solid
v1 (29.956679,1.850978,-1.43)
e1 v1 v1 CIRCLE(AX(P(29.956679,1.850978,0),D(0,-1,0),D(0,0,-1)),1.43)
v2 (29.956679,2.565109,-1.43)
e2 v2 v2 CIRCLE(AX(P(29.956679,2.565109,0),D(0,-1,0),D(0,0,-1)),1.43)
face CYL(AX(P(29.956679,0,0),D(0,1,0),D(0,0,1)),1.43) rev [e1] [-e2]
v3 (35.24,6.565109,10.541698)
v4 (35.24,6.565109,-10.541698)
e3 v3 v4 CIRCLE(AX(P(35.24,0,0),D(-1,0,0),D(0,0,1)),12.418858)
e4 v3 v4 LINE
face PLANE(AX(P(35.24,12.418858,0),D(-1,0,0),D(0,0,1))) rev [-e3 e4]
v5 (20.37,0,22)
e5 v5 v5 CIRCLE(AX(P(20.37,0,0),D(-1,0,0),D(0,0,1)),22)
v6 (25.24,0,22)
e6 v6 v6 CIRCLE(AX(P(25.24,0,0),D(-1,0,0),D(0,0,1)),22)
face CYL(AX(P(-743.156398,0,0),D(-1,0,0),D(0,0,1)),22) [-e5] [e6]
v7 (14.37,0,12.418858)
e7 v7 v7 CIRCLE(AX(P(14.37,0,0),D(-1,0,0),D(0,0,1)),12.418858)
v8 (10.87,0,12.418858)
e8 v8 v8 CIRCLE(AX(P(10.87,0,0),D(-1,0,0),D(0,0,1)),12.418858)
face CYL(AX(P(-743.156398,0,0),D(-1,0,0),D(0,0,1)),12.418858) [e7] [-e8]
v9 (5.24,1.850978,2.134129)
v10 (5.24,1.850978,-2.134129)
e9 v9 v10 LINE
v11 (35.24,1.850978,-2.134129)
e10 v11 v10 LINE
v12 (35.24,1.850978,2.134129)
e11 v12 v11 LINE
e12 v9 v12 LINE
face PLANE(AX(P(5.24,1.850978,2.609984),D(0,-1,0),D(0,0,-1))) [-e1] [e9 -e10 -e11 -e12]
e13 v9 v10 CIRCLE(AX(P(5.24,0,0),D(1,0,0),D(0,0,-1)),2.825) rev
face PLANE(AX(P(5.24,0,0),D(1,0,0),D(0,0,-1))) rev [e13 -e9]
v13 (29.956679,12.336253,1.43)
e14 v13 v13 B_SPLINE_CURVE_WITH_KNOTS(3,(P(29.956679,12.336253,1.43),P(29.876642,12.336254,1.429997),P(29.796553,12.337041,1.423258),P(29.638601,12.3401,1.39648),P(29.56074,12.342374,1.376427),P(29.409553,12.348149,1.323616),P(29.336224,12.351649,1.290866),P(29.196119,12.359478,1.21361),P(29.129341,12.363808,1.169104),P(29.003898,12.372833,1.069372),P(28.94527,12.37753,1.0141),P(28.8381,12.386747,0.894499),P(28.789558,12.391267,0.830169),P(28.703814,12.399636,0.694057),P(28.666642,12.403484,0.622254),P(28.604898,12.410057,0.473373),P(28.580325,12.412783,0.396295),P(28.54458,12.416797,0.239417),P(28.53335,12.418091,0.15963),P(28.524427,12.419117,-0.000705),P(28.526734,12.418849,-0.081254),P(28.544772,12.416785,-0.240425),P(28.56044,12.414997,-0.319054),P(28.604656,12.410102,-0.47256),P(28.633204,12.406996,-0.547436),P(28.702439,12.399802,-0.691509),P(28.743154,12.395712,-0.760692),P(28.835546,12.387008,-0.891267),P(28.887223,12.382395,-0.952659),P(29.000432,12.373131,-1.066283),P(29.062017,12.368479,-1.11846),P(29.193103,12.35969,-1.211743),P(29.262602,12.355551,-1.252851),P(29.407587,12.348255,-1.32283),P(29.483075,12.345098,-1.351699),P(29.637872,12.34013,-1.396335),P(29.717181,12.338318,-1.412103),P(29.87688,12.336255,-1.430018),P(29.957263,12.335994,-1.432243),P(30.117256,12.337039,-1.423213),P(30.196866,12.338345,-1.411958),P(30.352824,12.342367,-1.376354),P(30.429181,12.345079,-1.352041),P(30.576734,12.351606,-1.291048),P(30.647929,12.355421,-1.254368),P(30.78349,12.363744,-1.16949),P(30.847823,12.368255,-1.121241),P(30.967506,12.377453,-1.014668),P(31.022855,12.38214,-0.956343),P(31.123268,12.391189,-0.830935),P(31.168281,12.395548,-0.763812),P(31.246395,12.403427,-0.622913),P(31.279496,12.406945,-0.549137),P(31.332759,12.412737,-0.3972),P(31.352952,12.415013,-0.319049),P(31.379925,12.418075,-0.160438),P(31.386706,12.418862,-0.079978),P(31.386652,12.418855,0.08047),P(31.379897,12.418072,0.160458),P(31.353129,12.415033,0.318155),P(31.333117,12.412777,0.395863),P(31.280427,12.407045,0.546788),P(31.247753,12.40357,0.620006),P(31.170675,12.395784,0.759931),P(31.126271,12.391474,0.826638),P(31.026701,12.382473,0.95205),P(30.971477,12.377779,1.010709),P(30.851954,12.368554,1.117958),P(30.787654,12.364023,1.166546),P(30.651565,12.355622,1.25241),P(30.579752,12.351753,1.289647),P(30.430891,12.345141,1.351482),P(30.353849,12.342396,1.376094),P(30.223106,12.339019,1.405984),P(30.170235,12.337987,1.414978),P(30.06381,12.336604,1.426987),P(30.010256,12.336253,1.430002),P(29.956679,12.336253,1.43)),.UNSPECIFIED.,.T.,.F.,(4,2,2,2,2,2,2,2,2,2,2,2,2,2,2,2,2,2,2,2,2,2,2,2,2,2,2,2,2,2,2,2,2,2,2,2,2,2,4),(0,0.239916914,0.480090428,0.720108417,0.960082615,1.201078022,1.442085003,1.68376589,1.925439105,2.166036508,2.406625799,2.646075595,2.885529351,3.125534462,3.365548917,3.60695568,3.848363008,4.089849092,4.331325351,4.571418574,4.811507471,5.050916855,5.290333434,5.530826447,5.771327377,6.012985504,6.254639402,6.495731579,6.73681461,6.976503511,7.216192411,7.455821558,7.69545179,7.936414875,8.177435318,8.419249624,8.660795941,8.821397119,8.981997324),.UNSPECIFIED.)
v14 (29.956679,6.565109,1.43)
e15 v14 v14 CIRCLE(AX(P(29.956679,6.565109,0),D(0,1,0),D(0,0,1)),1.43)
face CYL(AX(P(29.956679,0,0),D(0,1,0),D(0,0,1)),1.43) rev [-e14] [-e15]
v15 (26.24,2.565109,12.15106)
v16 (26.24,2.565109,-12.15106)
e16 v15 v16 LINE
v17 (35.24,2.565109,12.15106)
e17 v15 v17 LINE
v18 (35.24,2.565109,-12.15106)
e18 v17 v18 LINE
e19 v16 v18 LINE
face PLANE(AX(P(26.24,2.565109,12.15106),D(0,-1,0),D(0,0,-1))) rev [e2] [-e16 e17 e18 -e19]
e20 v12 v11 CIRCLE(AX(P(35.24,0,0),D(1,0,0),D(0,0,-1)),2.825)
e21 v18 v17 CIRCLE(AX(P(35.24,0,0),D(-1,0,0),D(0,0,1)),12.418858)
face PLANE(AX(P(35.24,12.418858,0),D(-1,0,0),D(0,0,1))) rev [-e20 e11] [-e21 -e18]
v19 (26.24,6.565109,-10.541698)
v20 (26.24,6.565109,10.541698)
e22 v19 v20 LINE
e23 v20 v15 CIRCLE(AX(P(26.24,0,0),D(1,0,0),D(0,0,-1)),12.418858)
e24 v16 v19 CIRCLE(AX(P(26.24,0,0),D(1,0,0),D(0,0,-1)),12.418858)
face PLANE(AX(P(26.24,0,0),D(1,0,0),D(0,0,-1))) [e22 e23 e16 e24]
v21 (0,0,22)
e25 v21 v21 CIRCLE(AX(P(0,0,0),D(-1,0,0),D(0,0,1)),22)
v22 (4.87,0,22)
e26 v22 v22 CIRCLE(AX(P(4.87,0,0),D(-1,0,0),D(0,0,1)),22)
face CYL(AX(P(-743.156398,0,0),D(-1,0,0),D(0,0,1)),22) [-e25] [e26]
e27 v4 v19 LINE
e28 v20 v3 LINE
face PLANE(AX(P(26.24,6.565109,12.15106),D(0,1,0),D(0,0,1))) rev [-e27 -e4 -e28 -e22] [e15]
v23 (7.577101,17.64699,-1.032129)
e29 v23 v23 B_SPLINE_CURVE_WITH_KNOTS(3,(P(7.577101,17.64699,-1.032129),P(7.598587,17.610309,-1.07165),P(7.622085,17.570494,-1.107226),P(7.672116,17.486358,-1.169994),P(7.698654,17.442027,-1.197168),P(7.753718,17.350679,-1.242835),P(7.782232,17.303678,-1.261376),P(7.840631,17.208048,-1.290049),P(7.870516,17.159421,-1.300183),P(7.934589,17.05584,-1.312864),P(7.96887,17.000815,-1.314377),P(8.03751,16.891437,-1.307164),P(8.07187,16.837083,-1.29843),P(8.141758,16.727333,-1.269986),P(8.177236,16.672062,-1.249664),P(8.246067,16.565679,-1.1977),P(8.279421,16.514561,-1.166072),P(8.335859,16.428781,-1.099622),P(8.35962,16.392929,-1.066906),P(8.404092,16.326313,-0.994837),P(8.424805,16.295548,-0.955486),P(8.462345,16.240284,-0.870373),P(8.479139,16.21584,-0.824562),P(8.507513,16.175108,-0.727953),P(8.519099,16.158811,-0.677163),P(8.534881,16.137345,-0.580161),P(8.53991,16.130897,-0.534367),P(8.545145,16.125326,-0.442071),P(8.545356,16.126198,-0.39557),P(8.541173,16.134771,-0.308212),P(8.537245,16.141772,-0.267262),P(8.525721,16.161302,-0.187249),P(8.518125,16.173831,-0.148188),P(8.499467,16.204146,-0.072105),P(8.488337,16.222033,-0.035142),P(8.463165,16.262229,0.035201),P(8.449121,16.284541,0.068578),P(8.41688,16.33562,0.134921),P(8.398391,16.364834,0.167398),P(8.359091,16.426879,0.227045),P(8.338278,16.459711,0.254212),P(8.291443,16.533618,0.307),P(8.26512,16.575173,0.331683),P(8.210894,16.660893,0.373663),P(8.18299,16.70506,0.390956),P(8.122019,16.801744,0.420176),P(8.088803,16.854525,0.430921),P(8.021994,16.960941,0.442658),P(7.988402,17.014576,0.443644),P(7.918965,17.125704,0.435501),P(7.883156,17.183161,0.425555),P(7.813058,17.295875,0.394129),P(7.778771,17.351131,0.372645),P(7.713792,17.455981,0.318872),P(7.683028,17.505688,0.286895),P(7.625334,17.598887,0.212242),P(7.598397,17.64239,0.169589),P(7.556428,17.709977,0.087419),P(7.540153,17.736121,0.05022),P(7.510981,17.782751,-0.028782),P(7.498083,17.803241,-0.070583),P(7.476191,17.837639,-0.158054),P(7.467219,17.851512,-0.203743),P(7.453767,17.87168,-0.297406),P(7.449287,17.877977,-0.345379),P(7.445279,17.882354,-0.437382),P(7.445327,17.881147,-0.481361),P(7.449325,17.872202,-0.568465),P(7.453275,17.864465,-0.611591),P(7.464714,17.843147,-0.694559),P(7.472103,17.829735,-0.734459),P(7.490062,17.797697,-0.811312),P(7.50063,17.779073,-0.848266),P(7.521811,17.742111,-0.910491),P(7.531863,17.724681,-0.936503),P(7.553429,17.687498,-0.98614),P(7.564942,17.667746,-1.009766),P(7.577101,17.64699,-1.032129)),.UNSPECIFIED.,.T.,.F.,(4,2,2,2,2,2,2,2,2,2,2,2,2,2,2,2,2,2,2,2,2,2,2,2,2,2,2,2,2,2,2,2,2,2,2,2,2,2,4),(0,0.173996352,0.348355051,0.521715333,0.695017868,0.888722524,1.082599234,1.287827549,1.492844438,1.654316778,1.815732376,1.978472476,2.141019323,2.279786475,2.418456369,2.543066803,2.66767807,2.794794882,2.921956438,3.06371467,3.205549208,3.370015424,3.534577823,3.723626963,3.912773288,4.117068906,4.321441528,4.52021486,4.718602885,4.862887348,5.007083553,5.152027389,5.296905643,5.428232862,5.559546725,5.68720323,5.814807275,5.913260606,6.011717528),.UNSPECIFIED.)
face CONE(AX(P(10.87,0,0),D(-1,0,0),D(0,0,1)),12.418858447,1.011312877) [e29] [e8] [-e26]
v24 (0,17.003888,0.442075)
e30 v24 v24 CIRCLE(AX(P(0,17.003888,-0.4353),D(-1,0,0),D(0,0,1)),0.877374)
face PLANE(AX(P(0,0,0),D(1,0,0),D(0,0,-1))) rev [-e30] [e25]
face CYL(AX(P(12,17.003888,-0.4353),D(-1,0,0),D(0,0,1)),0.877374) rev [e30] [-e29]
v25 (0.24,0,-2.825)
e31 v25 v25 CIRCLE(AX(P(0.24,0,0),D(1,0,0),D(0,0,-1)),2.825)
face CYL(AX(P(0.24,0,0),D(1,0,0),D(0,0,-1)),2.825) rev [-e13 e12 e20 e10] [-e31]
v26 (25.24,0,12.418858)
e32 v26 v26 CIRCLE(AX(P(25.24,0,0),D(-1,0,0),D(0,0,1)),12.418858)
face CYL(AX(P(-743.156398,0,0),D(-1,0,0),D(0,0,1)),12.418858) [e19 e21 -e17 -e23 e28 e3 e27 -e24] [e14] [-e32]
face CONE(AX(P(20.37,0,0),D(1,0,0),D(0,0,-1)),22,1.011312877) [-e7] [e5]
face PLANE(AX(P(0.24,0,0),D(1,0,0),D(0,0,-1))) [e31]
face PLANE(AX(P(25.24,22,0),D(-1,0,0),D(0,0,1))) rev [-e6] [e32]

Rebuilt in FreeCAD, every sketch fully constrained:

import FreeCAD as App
import Part
import Sketcher

V = App.Vector
Q = App.Units.Quantity

doc = App.newDocument("Part")
body = doc.addObject("PartDesign::Body", "Body")

sketch1 = body.newObject("Sketcher::SketchObject", "Sketch")
sketch1.AttachmentSupport = (doc.getObject("XY_Plane"), [""])
sketch1.MapMode = "FlatFace"
sketch1.addGeometry([
    Part.LineSegment(V(0, 22, 0), V(0, 0, 0)),
    Part.LineSegment(V(0, 0, 0), V(35.2, 0, 0)),
    Part.LineSegment(V(35.2, 0, 0), V(35.2, 12.4, 0)),
    Part.LineSegment(V(35.2, 12.4, 0), V(25.2, 12.4, 0)),
    Part.LineSegment(V(25.2, 12.4, 0), V(25.2, 22, 0)),
    Part.LineSegment(V(25.2, 22, 0), V(20.4, 22, 0)),
    Part.LineSegment(V(20.4, 22, 0), V(14.4, 12.4, 0)),
    Part.LineSegment(V(14.4, 12.4, 0), V(10.9, 12.4, 0)),
    Part.LineSegment(V(10.9, 12.4, 0), V(4.9, 22, 0)),
    Part.LineSegment(V(4.9, 22, 0), V(0, 22, 0)),
], False)
sketch1.addConstraint([
    Sketcher.Constraint("Coincident", 0, 2, 1, 1),
    Sketcher.Constraint("Coincident", 1, 2, 2, 1),
    Sketcher.Constraint("Coincident", 2, 2, 3, 1),
    Sketcher.Constraint("Coincident", 3, 2, 4, 1),
    Sketcher.Constraint("Coincident", 4, 2, 5, 1),
    Sketcher.Constraint("Coincident", 5, 2, 6, 1),
    Sketcher.Constraint("Coincident", 6, 2, 7, 1),
    Sketcher.Constraint("Coincident", 7, 2, 8, 1),
    Sketcher.Constraint("Coincident", 8, 2, 9, 1),
    Sketcher.Constraint("Coincident", 9, 2, 0, 1),
    Sketcher.Constraint("Vertical", 0),
    Sketcher.Constraint("Horizontal", 1),
    Sketcher.Constraint("Vertical", 2),
    Sketcher.Constraint("Horizontal", 3),
    Sketcher.Constraint("Vertical", 4),
    Sketcher.Constraint("Horizontal", 5),
    Sketcher.Constraint("Horizontal", 7),
    Sketcher.Constraint("Horizontal", 9),
    Sketcher.Constraint("Coincident", 0, 2, -1, 1),
    Sketcher.Constraint("Horizontal", 3, 2, 6, 2),
    Sketcher.Constraint("Horizontal", 5, 2, 8, 2),
    Sketcher.Constraint("Equal", 5, 9),
    Sketcher.Constraint("Equal", 6, 8),
    Sketcher.Constraint("DistanceX", 3, 2, 3, 1, Q("10 mm")),
    Sketcher.Constraint("DistanceY", 0, 2, 0, 1, Q("22 mm")),
    Sketcher.Constraint("DistanceX", 7, 2, 7, 1, Q("3.5 mm")),
    Sketcher.Constraint("DistanceX", 6, 2, 5, 2, Q("6 mm")),
    Sketcher.Constraint("DistanceX", 1, 1, 1, 2, Q("35.24 mm")),
    Sketcher.Constraint("DistanceY", 2, 1, 2, 2, Q("12.418858 mm")),
])
revolution = body.newObject("PartDesign::Revolution", "Revolution")
revolution.Profile = sketch1
revolution.ReferenceAxis = (sketch1, ["H_Axis"])
revolution.Angle = 360

sketch2 = body.newObject("Sketcher::SketchObject", "Sketch001")
sketch2.AttachmentSupport = (doc.getObject("YZ_Plane"), [""])
sketch2.MapMode = "FlatFace"
sketch2.AttachmentOffset = App.Placement(V(0, 0, 35.24), App.Rotation())
sketch2.addGeometry(Part.Circle(V(0, 0, 0), V(0, 0, 1), 2.8), False)
sketch2.addConstraint([
    Sketcher.Constraint("Coincident", 0, 3, -1, 1),
    Sketcher.Constraint("Diameter", 0, Q("5.65 mm")),
])
pocket1 = body.newObject("PartDesign::Pocket", "Pocket")
pocket1.Profile = sketch2
pocket1.Length = 35

sketch3 = body.newObject("Sketcher::SketchObject", "Sketch002")
sketch3.AttachmentSupport = (doc.getObject("YZ_Plane"), [""])
sketch3.MapMode = "FlatFace"
sketch3.addGeometry(Part.Circle(V(17, -0.4, 0), V(0, 0, 1), 0.9), False)
sketch3.addConstraint([
    Sketcher.Constraint("Diameter", 0, Q("1.754749 mm")),
    Sketcher.Constraint("DistanceY", 0, 3, -1, 1, Q("0.4353 mm")),
    Sketcher.Constraint("DistanceX", -1, 1, 0, 3, Q("17.003888 mm")),
])
pocket2 = body.newObject("PartDesign::Pocket", "Pocket001")
pocket2.Profile = sketch3
pocket2.Length = 12
pocket2.Reversed = True

sketch4 = body.newObject("Sketcher::SketchObject", "Sketch003")
sketch4.AttachmentSupport = (doc.getObject("YZ_Plane"), [""])
sketch4.MapMode = "FlatFace"
sketch4.AttachmentOffset = App.Placement(V(0, 0, 35.24), App.Rotation())
sketch4.addGeometry([
    Part.LineSegment(V(2.9, 2.6, 0), V(1.9, 2.6, 0)),
    Part.LineSegment(V(1.9, 2.6, 0), V(1.9, -2.4, 0)),
    Part.LineSegment(V(1.9, -2.4, 0), V(2.9, -2.4, 0)),
    Part.LineSegment(V(2.9, -2.4, 0), V(2.9, 2.6, 0)),
], False)
sketch4.addConstraint([
    Sketcher.Constraint("Coincident", 0, 2, 1, 1),
    Sketcher.Constraint("Coincident", 1, 2, 2, 1),
    Sketcher.Constraint("Coincident", 2, 2, 3, 1),
    Sketcher.Constraint("Coincident", 3, 2, 0, 1),
    Sketcher.Constraint("Horizontal", 0),
    Sketcher.Constraint("Vertical", 1),
    Sketcher.Constraint("Horizontal", 2),
    Sketcher.Constraint("Vertical", 3),
    Sketcher.Constraint("DistanceX", 0, 2, 0, 1, Q("1 mm")),
    Sketcher.Constraint("DistanceY", 1, 2, 1, 1, Q("5.008881 mm")),
    Sketcher.Constraint("DistanceX", -1, 1, 0, 2, Q("1.850978 mm")),
    Sketcher.Constraint("DistanceY", -1, 1, 0, 2, Q("2.609984 mm")),
])
pad1 = body.newObject("PartDesign::Pad", "Pad")
pad1.Profile = sketch4
pad1.Length = 30
pad1.Reversed = True

sketch5 = body.newObject("Sketcher::SketchObject", "Sketch004")
sketch5.AttachmentSupport = (doc.getObject("YZ_Plane"), [""])
sketch5.MapMode = "FlatFace"
sketch5.AttachmentOffset = App.Placement(V(0, 0, 35.24), App.Rotation())
sketch5.addGeometry([
    Part.LineSegment(V(2.9, 0.6, 0), V(2.4, 0.6, 0)),
    Part.LineSegment(V(2.4, 0.6, 0), V(2.4, -0.4, 0)),
    Part.LineSegment(V(2.4, -0.4, 0), V(2.9, -0.4, 0)),
    Part.LineSegment(V(2.9, -0.4, 0), V(2.9, 0.6, 0)),
], False)
sketch5.addConstraint([
    Sketcher.Constraint("Coincident", 0, 2, 1, 1),
    Sketcher.Constraint("Coincident", 1, 2, 2, 1),
    Sketcher.Constraint("Coincident", 2, 2, 3, 1),
    Sketcher.Constraint("Coincident", 3, 2, 0, 1),
    Sketcher.Constraint("Horizontal", 0),
    Sketcher.Constraint("Vertical", 1),
    Sketcher.Constraint("Horizontal", 2),
    Sketcher.Constraint("Vertical", 3),
    Sketcher.Constraint("DistanceX", 0, 2, 0, 1, Q("0.511502 mm")),
    Sketcher.Constraint("DistanceY", 1, 2, 1, 1, Q("0.959067 mm")),
    Sketcher.Constraint("DistanceX", -1, 1, 0, 2, Q("2.418192 mm")),
    Sketcher.Constraint("DistanceY", -1, 1, 0, 2, Q("0.56365 mm")),
])
pad2 = body.newObject("PartDesign::Pad", "Pad001")
pad2.Profile = sketch5
pad2.Length = 30
pad2.Reversed = True

sketch6 = body.newObject("Sketcher::SketchObject", "Sketch005")
sketch6.AttachmentSupport = (doc.getObject("YZ_Plane"), [""])
sketch6.MapMode = "FlatFace"
sketch6.AttachmentOffset = App.Placement(V(0, 0, 35.24), App.Rotation())
sketch6.addGeometry([
    Part.LineSegment(V(6.6, 12.2, 0), V(2.6, 12.2, 0)),
    Part.LineSegment(V(2.6, 12.2, 0), V(2.6, -12.2, 0)),
    Part.LineSegment(V(2.6, -12.2, 0), V(6.6, -12.2, 0)),
    Part.LineSegment(V(6.6, -12.2, 0), V(6.6, 12.2, 0)),
], False)
sketch6.addConstraint([
    Sketcher.Constraint("Coincident", 0, 2, 1, 1),
    Sketcher.Constraint("Coincident", 1, 2, 2, 1),
    Sketcher.Constraint("Coincident", 2, 2, 3, 1),
    Sketcher.Constraint("Coincident", 3, 2, 0, 1),
    Sketcher.Constraint("Horizontal", 0),
    Sketcher.Constraint("Vertical", 1),
    Sketcher.Constraint("Horizontal", 2),
    Sketcher.Constraint("Vertical", 3),
    Sketcher.Constraint("DistanceX", 0, 2, 0, 1, Q("4 mm")),
    Sketcher.Constraint("DistanceY", 1, 2, 1, 1, Q("24.30212 mm")),
    Sketcher.Constraint("DistanceX", -1, 1, 0, 2, Q("2.565109 mm")),
    Sketcher.Constraint("DistanceY", -1, 1, 0, 2, Q("12.15106 mm")),
])
pocket3 = body.newObject("PartDesign::Pocket", "Pocket002")
pocket3.Profile = sketch6
pocket3.Length = 9

sketch7 = body.newObject("Sketcher::SketchObject", "Sketch006")
sketch7.AttachmentSupport = (doc.getObject("XZ_Plane"), [""])
sketch7.MapMode = "FlatFace"
sketch7.AttachmentOffset = App.Placement(V(0, 0, -22), App.Rotation())
sketch7.addGeometry(Part.Circle(V(30, 0, 0), V(0, 0, 1), 1.4), False)
sketch7.addConstraint([
    Sketcher.Constraint("PointOnObject", 0, 3, -1),
    Sketcher.Constraint("Diameter", 0, Q("2.86 mm")),
    Sketcher.Constraint("DistanceX", -1, 1, 0, 3, Q("29.956679 mm")),
])
pocket4 = body.newObject("PartDesign::Pocket", "Pocket003")
pocket4.Profile = sketch7
pocket4.Length = 22
pocket4.Reversed = True

doc.recompute()
